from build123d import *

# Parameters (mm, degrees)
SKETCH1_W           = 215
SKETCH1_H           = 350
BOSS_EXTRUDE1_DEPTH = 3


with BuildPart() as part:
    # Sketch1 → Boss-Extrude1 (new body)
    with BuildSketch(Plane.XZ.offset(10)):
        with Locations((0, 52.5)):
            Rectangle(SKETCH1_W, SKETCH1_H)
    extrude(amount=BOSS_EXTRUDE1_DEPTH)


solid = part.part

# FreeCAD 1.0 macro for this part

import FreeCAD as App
import Part
import Sketcher

V = App.Vector
Q = App.Units.Quantity


def add_polygon(sketch, points):
    """Adds a closed chain of lines whose ends are joined by coincident constraints."""
    first, n = sketch.GeometryCount, len(points)
    for a, b in zip(points, points[1:] + points[:1]):
        sketch.addGeometry(Part.LineSegment(App.Vector(*a, 0), App.Vector(*b, 0)), False)
    for i in range(n):
        sketch.addConstraint(Sketcher.Constraint("Coincident", first + i, 2, first + (i + 1) % n, 1))

doc = App.newDocument("Part")
body = doc.addObject("PartDesign::Body", "Body")

# Sketch on XZ plane
sketch1 = body.newObject("Sketcher::SketchObject", "Sketch")
sketch1.AttachmentSupport = (doc.getObject("XZ_Plane"), [""])
sketch1.MapMode = "FlatFace"
sketch1.AttachmentOffset = App.Placement(V(0, 0, 10), App.Rotation())
add_polygon(sketch1, [(-108, 228), (-108, -122), (108, -122), (108, 228)])  # lines 0-3
sketch1.addConstraint([
    Sketcher.Constraint("Vertical", 0),
    Sketcher.Constraint("Horizontal", 1),
    Sketcher.Constraint("Vertical", 2),
    Sketcher.Constraint("Horizontal", 3),
    Sketcher.Constraint("DistanceX", 1, 1, 1, 2, Q("215 mm")),
    Sketcher.Constraint("DistanceY", 0, 2, 0, 1, Q("350 mm")),
    Sketcher.Constraint("DistanceX", 0, 2, -1, 1, Q("107.5 mm")),
    Sketcher.Constraint("DistanceY", 0, 2, -1, 1, Q("122.5 mm")),
])
pad1 = body.newObject("PartDesign::Pad", "Pad")
pad1.Profile = sketch1
pad1.Length = 3

doc.recompute()
